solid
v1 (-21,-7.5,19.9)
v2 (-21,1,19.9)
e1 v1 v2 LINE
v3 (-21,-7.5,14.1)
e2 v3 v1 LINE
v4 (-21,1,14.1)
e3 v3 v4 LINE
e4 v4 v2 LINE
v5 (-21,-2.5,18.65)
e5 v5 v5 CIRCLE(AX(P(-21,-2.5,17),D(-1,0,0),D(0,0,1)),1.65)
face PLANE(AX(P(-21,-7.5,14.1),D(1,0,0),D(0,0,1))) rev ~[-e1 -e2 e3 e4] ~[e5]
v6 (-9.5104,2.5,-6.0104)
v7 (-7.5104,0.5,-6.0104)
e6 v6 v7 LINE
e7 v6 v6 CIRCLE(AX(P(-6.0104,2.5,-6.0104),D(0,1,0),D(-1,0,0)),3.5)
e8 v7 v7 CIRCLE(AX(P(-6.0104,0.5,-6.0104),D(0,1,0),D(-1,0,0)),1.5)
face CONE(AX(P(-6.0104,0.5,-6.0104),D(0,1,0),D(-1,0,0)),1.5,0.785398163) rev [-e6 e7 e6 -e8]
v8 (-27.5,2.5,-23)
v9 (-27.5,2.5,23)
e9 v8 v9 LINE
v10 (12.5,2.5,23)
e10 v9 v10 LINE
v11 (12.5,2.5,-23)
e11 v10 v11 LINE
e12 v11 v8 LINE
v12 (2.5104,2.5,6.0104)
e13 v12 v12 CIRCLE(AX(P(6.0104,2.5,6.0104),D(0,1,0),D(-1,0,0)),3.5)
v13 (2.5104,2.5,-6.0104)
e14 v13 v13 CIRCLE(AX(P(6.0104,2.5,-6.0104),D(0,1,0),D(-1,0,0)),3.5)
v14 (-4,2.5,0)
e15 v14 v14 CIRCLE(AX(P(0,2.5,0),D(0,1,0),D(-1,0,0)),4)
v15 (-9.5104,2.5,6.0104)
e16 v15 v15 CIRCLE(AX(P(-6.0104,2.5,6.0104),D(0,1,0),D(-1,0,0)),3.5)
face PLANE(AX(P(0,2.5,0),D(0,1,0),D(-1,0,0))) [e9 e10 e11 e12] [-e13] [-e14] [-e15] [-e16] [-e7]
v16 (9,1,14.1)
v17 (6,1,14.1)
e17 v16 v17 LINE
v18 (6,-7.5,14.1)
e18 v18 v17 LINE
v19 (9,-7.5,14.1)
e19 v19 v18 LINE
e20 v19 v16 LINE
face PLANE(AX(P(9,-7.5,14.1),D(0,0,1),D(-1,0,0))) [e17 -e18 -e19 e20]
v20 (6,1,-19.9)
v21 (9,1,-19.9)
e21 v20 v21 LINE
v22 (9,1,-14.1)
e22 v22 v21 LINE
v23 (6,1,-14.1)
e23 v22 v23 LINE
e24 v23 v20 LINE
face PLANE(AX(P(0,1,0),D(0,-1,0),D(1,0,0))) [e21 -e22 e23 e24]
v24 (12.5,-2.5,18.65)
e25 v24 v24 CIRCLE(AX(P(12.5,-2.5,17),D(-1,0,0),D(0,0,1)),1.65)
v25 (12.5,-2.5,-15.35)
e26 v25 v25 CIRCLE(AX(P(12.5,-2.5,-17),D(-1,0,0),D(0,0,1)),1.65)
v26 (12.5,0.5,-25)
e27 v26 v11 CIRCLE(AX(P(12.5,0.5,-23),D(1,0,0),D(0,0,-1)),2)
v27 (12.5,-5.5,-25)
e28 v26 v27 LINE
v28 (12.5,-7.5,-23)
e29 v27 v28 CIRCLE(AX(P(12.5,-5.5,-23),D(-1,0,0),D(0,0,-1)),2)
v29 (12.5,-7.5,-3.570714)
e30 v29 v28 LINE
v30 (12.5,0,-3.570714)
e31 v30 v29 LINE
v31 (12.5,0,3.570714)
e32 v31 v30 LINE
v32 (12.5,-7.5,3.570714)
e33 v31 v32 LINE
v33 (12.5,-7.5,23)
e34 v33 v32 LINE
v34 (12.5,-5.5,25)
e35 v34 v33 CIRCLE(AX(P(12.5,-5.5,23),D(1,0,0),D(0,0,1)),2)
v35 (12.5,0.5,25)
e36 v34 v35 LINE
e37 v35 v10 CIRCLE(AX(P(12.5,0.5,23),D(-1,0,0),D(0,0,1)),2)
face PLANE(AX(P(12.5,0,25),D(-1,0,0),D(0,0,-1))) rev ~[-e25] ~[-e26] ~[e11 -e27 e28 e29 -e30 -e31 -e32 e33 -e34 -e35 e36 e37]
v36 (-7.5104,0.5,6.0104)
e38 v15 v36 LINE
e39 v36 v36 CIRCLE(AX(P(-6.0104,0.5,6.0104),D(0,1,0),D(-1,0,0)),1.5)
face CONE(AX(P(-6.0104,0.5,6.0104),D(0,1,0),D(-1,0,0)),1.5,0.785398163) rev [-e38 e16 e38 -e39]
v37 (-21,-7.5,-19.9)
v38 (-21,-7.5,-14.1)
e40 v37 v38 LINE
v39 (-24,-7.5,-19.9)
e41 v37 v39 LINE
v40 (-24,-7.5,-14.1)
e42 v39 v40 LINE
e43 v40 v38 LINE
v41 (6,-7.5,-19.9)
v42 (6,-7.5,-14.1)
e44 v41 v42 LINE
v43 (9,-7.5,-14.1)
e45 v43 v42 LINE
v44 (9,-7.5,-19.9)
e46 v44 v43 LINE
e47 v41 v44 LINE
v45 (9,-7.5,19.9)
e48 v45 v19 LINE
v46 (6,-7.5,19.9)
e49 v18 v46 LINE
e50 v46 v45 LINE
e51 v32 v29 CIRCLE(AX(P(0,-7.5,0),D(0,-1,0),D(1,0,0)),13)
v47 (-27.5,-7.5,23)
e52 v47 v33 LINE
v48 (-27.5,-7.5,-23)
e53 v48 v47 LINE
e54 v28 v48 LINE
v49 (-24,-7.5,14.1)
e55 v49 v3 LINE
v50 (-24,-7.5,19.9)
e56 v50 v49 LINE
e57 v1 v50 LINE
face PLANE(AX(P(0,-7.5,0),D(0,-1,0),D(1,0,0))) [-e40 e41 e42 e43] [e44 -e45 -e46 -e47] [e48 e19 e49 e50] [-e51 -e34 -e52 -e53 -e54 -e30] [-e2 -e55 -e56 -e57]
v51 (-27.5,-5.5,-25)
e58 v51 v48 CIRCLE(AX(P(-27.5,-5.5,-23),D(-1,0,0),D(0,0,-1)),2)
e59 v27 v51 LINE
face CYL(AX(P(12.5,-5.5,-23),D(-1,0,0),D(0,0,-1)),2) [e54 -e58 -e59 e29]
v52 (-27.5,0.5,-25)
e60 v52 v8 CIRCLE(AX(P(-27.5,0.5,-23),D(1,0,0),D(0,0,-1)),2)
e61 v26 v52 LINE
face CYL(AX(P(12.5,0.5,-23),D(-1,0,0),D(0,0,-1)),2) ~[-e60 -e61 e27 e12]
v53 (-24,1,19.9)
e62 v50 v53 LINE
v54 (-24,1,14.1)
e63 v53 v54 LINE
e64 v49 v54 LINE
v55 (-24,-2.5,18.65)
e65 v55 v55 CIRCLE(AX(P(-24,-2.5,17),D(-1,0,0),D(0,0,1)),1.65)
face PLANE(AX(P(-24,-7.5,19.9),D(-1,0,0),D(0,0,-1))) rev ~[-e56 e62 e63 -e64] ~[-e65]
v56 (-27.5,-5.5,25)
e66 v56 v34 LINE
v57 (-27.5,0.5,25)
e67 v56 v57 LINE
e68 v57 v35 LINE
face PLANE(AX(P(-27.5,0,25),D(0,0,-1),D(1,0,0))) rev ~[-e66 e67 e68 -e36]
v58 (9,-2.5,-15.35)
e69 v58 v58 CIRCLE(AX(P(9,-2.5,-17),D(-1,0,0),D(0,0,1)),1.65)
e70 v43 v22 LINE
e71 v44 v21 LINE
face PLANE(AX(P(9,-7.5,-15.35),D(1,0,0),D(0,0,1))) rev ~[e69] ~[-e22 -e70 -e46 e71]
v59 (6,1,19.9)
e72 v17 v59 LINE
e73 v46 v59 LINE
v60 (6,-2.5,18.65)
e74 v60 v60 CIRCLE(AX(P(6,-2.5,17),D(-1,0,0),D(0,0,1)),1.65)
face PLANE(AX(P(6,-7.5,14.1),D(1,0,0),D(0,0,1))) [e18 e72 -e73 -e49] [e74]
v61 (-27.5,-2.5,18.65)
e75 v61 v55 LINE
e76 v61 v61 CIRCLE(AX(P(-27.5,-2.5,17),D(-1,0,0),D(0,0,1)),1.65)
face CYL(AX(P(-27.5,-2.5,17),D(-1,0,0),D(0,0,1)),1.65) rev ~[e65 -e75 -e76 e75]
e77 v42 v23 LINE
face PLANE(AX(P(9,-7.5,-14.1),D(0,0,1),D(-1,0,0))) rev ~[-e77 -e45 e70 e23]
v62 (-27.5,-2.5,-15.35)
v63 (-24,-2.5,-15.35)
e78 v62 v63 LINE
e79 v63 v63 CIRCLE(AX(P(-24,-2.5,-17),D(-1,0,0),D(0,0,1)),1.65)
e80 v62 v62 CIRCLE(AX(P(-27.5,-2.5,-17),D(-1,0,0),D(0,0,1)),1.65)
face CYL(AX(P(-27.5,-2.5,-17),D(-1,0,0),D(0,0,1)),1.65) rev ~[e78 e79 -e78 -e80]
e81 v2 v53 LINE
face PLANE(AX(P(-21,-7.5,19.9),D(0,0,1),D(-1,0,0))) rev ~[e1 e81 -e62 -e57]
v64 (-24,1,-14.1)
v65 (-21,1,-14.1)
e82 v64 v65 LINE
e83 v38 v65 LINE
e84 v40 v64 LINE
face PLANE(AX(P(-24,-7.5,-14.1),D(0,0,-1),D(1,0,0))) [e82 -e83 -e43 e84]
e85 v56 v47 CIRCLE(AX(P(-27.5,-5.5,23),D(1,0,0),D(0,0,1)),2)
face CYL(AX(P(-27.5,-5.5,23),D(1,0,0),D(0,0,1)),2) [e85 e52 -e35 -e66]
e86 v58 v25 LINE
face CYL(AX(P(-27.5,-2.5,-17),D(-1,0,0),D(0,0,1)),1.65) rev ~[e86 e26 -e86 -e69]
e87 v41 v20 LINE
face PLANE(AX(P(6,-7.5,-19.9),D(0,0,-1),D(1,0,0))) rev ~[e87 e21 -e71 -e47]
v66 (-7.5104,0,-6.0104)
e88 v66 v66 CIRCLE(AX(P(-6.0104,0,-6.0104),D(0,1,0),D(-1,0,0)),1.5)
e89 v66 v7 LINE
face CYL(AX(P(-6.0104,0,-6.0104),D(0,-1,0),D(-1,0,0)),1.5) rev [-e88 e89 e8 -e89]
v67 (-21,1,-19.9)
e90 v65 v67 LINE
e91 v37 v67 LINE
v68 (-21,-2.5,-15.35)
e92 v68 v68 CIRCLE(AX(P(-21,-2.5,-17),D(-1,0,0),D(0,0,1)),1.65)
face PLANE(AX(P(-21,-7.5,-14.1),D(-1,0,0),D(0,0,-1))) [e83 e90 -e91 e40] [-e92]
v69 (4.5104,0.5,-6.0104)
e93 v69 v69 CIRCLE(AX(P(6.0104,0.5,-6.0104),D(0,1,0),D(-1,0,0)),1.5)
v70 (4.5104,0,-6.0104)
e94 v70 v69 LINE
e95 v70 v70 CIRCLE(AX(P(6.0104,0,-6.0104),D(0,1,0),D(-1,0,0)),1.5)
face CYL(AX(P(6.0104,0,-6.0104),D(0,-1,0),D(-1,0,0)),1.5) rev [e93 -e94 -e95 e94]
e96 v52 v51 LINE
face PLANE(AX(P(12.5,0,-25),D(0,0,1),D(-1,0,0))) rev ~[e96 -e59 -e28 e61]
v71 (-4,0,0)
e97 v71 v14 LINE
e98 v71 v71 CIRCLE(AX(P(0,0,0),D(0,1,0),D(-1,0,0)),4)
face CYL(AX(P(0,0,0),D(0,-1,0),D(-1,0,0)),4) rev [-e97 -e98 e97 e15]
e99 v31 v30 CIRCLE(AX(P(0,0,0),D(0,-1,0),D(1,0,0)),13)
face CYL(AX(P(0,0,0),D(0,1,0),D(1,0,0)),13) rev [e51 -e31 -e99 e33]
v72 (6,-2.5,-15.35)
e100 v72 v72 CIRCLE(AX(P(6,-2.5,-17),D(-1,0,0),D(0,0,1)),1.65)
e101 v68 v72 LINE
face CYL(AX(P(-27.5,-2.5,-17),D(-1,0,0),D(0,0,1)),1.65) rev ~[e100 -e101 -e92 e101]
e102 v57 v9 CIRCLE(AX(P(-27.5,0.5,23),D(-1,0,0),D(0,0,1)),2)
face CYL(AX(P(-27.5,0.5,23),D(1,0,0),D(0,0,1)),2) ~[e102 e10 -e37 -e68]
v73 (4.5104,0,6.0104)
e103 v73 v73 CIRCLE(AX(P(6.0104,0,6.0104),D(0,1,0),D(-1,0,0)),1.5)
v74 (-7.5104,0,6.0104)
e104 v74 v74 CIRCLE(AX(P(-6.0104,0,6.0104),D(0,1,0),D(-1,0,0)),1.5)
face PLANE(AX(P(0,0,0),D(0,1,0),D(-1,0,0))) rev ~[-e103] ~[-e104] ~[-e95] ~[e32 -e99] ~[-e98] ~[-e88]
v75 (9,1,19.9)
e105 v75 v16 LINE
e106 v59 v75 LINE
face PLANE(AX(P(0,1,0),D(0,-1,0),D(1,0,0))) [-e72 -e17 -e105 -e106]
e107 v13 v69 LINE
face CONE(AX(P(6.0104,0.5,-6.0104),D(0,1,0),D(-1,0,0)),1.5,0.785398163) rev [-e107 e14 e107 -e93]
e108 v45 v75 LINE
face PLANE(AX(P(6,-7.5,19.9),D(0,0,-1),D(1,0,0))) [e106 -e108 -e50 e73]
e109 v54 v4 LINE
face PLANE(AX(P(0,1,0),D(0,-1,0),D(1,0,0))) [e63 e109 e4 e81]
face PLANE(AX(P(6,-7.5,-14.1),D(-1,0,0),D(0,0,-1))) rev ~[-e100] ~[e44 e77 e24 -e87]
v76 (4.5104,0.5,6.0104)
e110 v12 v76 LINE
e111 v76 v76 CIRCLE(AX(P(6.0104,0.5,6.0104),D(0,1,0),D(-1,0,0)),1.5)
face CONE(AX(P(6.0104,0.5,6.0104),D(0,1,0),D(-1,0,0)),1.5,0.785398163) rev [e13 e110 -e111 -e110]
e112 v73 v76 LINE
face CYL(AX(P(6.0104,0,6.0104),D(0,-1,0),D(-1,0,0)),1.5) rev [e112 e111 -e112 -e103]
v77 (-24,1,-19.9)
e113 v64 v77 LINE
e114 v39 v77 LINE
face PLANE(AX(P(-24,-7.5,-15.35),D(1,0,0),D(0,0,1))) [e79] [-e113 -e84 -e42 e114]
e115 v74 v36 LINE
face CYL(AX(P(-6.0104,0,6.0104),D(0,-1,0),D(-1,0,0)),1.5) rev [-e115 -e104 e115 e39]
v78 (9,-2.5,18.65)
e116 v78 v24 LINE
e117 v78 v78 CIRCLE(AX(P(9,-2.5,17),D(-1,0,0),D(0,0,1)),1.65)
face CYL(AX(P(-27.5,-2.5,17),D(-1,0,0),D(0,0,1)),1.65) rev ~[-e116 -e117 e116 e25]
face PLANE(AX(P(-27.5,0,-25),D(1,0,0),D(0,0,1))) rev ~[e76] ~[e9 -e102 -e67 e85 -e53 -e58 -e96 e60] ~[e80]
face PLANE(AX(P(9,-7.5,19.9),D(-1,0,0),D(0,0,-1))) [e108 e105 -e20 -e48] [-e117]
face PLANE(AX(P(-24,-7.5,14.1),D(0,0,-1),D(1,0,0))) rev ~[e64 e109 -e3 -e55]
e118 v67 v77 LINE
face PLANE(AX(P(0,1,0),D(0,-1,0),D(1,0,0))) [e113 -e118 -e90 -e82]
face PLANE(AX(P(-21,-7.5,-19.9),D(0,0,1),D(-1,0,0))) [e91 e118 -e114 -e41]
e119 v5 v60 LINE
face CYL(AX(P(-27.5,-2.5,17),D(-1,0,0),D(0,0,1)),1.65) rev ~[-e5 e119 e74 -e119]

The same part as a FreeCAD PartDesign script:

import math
import FreeCAD as App
import Part
import Sketcher

V = App.Vector
Q = App.Units.Quantity


def edges_at(feature, points):
    """Names of the edges that pass closest to the given points."""
    edges = feature.Shape.Edges
    near = lambda p: min(range(len(edges)), key=lambda i: edges[i].distToShape(Part.Vertex(*p))[0])
    return sorted({f"Edge{near(p) + 1}" for p in points})

doc = App.newDocument("Part")
body = doc.addObject("PartDesign::Body", "Body")

sketch1 = body.newObject("Sketcher::SketchObject", "Sketch")
sketch1.AttachmentSupport = (doc.getObject("XZ_Plane"), [""])
sketch1.MapMode = "FlatFace"
sketch1.addGeometry([
    Part.LineSegment(V(-27.5, -25, 0), V(-27.5, 25, 0)),
    Part.LineSegment(V(-27.5, 25, 0), V(12.5, 25, 0)),
    Part.LineSegment(V(12.5, 25, 0), V(12.5, -25, 0)),
    Part.LineSegment(V(12.5, -25, 0), V(-27.5, -25, 0)),
    Part.Circle(V(6, -6, 0), V(0, 0, 1), 1.5),
    Part.Circle(V(-6, -6, 0), V(0, 0, 1), 1.5),
    Part.Circle(V(6, 6, 0), V(0, 0, 1), 1.5),
    Part.Circle(V(0, 0, 0), V(0, 0, 1), 4),
    Part.Circle(V(-6, 6, 0), V(0, 0, 1), 1.5),
], False)
sketch1.addConstraint([
    Sketcher.Constraint("Coincident", 0, 2, 1, 1),
    Sketcher.Constraint("Coincident", 1, 2, 2, 1),
    Sketcher.Constraint("Coincident", 2, 2, 3, 1),
    Sketcher.Constraint("Coincident", 3, 2, 0, 1),
    Sketcher.Constraint("Vertical", 0),
    Sketcher.Constraint("Horizontal", 1),
    Sketcher.Constraint("Vertical", 2),
    Sketcher.Constraint("Horizontal", 3),
    Sketcher.Constraint("Coincident", 7, 3, -1, 1),
    Sketcher.Constraint("Equal", 4, 5),
    Sketcher.Constraint("Equal", 5, 6),
    Sketcher.Constraint("Equal", 6, 8),
    Sketcher.Constraint("Symmetric", 5, 3, 6, 3, -1, 1),
    Sketcher.Constraint("Symmetric", 4, 3, 8, 3, -1, 1),
    Sketcher.Constraint("Symmetric", 4, 3, 5, 3, -2),
    Sketcher.Constraint("Diameter", 4, Q("3 mm")),
    Sketcher.Constraint("Diameter", 7, Q("8 mm")),
    Sketcher.Constraint("DistanceX", 1, 1, 1, 2, Q("40 mm")),
    Sketcher.Constraint("DistanceY", 0, 1, 0, 2, Q("50 mm")),
    Sketcher.Constraint("DistanceY", -1, 1, 0, 2, Q("25 mm")),
    Sketcher.Constraint("DistanceX", 0, 2, -1, 1, Q("27.5 mm")),
    Sketcher.Constraint("DistanceX", -1, 1, 4, 3, Q("6.0104 mm")),
    Sketcher.Constraint("DistanceY", 4, 3, -1, 1, Q("6.0104 mm")),
])
pad1 = body.newObject("PartDesign::Pad", "Pad")
pad1.Profile = sketch1
pad1.Length = 2.5
pad1.Reversed = True

sketch2 = body.newObject("Sketcher::SketchObject", "Sketch001")
sketch2.AttachmentSupport = (doc.getObject("XZ_Plane"), [""])
sketch2.MapMode = "FlatFace"
sketch2.addGeometry([
    Part.ArcOfCircle(Part.Circle(V(0, 0, 0), V(0, 0, 1), 13), math.radians(16), math.radians(344)),
    Part.LineSegment(V(12, 4, 0), V(12, 25, 0)),
    Part.LineSegment(V(12, 25, 0), V(-28, 25, 0)),
    Part.LineSegment(V(-28, 25, 0), V(-28, -25, 0)),
    Part.LineSegment(V(-28, -25, 0), V(12, -25, 0)),
    Part.LineSegment(V(12, -25, 0), V(12, -4, 0)),
], False)
sketch2.addConstraint([
    Sketcher.Constraint("Coincident", 0, 1, 1, 1),
    Sketcher.Constraint("Coincident", 1, 2, 2, 1),
    Sketcher.Constraint("Coincident", 2, 2, 3, 1),
    Sketcher.Constraint("Coincident", 3, 2, 4, 1),
    Sketcher.Constraint("Coincident", 4, 2, 5, 1),
    Sketcher.Constraint("Coincident", 5, 2, 0, 2),
    Sketcher.Constraint("Vertical", 1),
    Sketcher.Constraint("Horizontal", 2),
    Sketcher.Constraint("Vertical", 3),
    Sketcher.Constraint("Horizontal", 4),
    Sketcher.Constraint("Vertical", 5),
    Sketcher.Constraint("Coincident", 0, 3, -1, 1),
    Sketcher.Constraint("Symmetric", 1, 2, 4, 2, -1),
    Sketcher.Constraint("Radius", 0, Q("13 mm")),
    Sketcher.Constraint("DistanceX", 2, 2, 2, 1, Q("40 mm")),
    Sketcher.Constraint("DistanceY", 3, 2, 3, 1, Q("50 mm")),
    Sketcher.Constraint("DistanceX", -1, 1, 0, 1, Q("12.5 mm")),
])
pad2 = body.newObject("PartDesign::Pad", "Pad001")
pad2.Profile = sketch2
pad2.Length = 7.5
doc.recompute()

fillet = body.newObject("PartDesign::Fillet", "Fillet")
fillet.Base = (pad2, edges_at(pad2, [
    (-7.5, -7.5, -25),
    (-7.5, 2.5, -25),
    (-7.5, -7.5, 25),
    (-7.5, 2.5, 25),
]))
fillet.Radius = 2

sketch3 = body.newObject("Sketcher::SketchObject", "Sketch002")
sketch3.AttachmentSupport = (doc.getObject("YZ_Plane"), [""])
sketch3.MapMode = "FlatFace"
sketch3.AttachmentOffset = App.Placement(V(0, 0, -27.5), App.Rotation())
sketch3.addGeometry([
    Part.Circle(V(-2.5, 17, 0), V(0, 0, 1), 1.6),
    Part.Circle(V(-2.5, -17, 0), V(0, 0, 1), 1.6),
], False)
sketch3.addConstraint([
    Sketcher.Constraint("Equal", 0, 1),
    Sketcher.Constraint("Symmetric", 0, 3, 1, 3, -1),
    Sketcher.Constraint("Diameter", 0, Q("3.3 mm")),
    Sketcher.Constraint("DistanceY", 1, 3, 0, 3, Q("34 mm")),
    Sketcher.Constraint("DistanceX", 0, 3, -1, 1, Q("2.5 mm")),
])
pocket1 = body.newObject("PartDesign::Pocket", "Pocket")
pocket1.Profile = sketch3
pocket1.Type = "ThroughAll"
pocket1.Reversed = True
doc.recompute()

chamfer = body.newObject("PartDesign::Chamfer", "Chamfer")
chamfer.Base = (pocket1, edges_at(pocket1, [
    (-4.51, 2.5, 6.01),
    (7.51, 2.5, -6.01),
    (-4.51, 2.5, -6.01),
    (7.51, 2.5, 6.01),
]))
chamfer.Size = 2

sketch4 = body.newObject("Sketcher::SketchObject", "Sketch003")
sketch4.AttachmentSupport = (doc.getObject("XZ_Plane"), [""])
sketch4.MapMode = "FlatFace"
sketch4.AttachmentOffset = App.Placement(V(0, 0, 7.5), App.Rotation())
sketch4.addGeometry([
    Part.LineSegment(V(-24, -14.1, 0), V(-24, -19.9, 0)),
    Part.LineSegment(V(-24, -19.9, 0), V(-21, -19.9, 0)),
    Part.LineSegment(V(-21, -19.9, 0), V(-21, -14.1, 0)),
    Part.LineSegment(V(-21, -14.1, 0), V(-24, -14.1, 0)),
    Part.LineSegment(V(6, -14.1, 0), V(6, -19.9, 0)),
    Part.LineSegment(V(6, -19.9, 0), V(9, -19.9, 0)),
    Part.LineSegment(V(9, -19.9, 0), V(9, -14.1, 0)),
    Part.LineSegment(V(9, -14.1, 0), V(6, -14.1, 0)),
    Part.LineSegment(V(6, 14.1, 0), V(9, 14.1, 0)),
    Part.LineSegment(V(9, 14.1, 0), V(9, 19.9, 0)),
    Part.LineSegment(V(9, 19.9, 0), V(6, 19.9, 0)),
    Part.LineSegment(V(6, 19.9, 0), V(6, 14.1, 0)),
    Part.LineSegment(V(-24, 14.1, 0), V(-21, 14.1, 0)),
    Part.LineSegment(V(-21, 14.1, 0), V(-21, 19.9, 0)),
    Part.LineSegment(V(-21, 19.9, 0), V(-24, 19.9, 0)),
    Part.LineSegment(V(-24, 19.9, 0), V(-24, 14.1, 0)),
], False)
sketch4.addConstraint([
    Sketcher.Constraint("Coincident", 0, 2, 1, 1),
    Sketcher.Constraint("Coincident", 1, 2, 2, 1),
    Sketcher.Constraint("Coincident", 2, 2, 3, 1),
    Sketcher.Constraint("Coincident", 3, 2, 0, 1),
    Sketcher.Constraint("Coincident", 4, 2, 5, 1),
    Sketcher.Constraint("Coincident", 5, 2, 6, 1),
    Sketcher.Constraint("Coincident", 6, 2, 7, 1),
    Sketcher.Constraint("Coincident", 7, 2, 4, 1),
    Sketcher.Constraint("Coincident", 8, 2, 9, 1),
    Sketcher.Constraint("Coincident", 9, 2, 10, 1),
    Sketcher.Constraint("Coincident", 10, 2, 11, 1),
    Sketcher.Constraint("Coincident", 11, 2, 8, 1),
    Sketcher.Constraint("Coincident", 12, 2, 13, 1),
    Sketcher.Constraint("Coincident", 13, 2, 14, 1),
    Sketcher.Constraint("Coincident", 14, 2, 15, 1),
    Sketcher.Constraint("Coincident", 15, 2, 12, 1),
    Sketcher.Constraint("Vertical", 0),
    Sketcher.Constraint("Horizontal", 1),
    Sketcher.Constraint("Vertical", 2),
    Sketcher.Constraint("Horizontal", 3),
    Sketcher.Constraint("Vertical", 4),
    Sketcher.Constraint("Horizontal", 5),
    Sketcher.Constraint("Vertical", 6),
    Sketcher.Constraint("Horizontal", 7),
    Sketcher.Constraint("Horizontal", 8),
    Sketcher.Constraint("Vertical", 9),
    Sketcher.Constraint("Horizontal", 10),
    Sketcher.Constraint("Vertical", 11),
    Sketcher.Constraint("Horizontal", 12),
    Sketcher.Constraint("Vertical", 13),
    Sketcher.Constraint("Horizontal", 14),
    Sketcher.Constraint("Vertical", 15),
    Sketcher.Constraint("Symmetric", 6, 2, 8, 2, -1),
    Sketcher.Constraint("Symmetric", 4, 2, 10, 2, -1),
    Sketcher.Constraint("Symmetric", 2, 2, 12, 2, -1),
    Sketcher.Constraint("Symmetric", 0, 2, 14, 2, -1),
    Sketcher.Constraint("Horizontal", 1, 2, 4, 2),
    Sketcher.Constraint("Horizontal", 3, 2, 6, 2),
    Sketcher.Constraint("Equal", 3, 5),
    Sketcher.Constraint("DistanceX", 1, 1, 1, 2, Q("3 mm")),
    Sketcher.Constraint("DistanceY", 0, 2, 0, 1, Q("5.8 mm")),
    Sketcher.Constraint("DistanceX", 0, 2, -1, 1, Q("24 mm")),
    Sketcher.Constraint("DistanceX", -1, 1, 4, 2, Q("6 mm")),
    Sketcher.Constraint("DistanceY", 5, 2, 8, 2, Q("34 mm")),
])
pocket2 = body.newObject("PartDesign::Pocket", "Pocket001")
pocket2.Profile = sketch4
pocket2.Length = 8.5

doc.recompute()
